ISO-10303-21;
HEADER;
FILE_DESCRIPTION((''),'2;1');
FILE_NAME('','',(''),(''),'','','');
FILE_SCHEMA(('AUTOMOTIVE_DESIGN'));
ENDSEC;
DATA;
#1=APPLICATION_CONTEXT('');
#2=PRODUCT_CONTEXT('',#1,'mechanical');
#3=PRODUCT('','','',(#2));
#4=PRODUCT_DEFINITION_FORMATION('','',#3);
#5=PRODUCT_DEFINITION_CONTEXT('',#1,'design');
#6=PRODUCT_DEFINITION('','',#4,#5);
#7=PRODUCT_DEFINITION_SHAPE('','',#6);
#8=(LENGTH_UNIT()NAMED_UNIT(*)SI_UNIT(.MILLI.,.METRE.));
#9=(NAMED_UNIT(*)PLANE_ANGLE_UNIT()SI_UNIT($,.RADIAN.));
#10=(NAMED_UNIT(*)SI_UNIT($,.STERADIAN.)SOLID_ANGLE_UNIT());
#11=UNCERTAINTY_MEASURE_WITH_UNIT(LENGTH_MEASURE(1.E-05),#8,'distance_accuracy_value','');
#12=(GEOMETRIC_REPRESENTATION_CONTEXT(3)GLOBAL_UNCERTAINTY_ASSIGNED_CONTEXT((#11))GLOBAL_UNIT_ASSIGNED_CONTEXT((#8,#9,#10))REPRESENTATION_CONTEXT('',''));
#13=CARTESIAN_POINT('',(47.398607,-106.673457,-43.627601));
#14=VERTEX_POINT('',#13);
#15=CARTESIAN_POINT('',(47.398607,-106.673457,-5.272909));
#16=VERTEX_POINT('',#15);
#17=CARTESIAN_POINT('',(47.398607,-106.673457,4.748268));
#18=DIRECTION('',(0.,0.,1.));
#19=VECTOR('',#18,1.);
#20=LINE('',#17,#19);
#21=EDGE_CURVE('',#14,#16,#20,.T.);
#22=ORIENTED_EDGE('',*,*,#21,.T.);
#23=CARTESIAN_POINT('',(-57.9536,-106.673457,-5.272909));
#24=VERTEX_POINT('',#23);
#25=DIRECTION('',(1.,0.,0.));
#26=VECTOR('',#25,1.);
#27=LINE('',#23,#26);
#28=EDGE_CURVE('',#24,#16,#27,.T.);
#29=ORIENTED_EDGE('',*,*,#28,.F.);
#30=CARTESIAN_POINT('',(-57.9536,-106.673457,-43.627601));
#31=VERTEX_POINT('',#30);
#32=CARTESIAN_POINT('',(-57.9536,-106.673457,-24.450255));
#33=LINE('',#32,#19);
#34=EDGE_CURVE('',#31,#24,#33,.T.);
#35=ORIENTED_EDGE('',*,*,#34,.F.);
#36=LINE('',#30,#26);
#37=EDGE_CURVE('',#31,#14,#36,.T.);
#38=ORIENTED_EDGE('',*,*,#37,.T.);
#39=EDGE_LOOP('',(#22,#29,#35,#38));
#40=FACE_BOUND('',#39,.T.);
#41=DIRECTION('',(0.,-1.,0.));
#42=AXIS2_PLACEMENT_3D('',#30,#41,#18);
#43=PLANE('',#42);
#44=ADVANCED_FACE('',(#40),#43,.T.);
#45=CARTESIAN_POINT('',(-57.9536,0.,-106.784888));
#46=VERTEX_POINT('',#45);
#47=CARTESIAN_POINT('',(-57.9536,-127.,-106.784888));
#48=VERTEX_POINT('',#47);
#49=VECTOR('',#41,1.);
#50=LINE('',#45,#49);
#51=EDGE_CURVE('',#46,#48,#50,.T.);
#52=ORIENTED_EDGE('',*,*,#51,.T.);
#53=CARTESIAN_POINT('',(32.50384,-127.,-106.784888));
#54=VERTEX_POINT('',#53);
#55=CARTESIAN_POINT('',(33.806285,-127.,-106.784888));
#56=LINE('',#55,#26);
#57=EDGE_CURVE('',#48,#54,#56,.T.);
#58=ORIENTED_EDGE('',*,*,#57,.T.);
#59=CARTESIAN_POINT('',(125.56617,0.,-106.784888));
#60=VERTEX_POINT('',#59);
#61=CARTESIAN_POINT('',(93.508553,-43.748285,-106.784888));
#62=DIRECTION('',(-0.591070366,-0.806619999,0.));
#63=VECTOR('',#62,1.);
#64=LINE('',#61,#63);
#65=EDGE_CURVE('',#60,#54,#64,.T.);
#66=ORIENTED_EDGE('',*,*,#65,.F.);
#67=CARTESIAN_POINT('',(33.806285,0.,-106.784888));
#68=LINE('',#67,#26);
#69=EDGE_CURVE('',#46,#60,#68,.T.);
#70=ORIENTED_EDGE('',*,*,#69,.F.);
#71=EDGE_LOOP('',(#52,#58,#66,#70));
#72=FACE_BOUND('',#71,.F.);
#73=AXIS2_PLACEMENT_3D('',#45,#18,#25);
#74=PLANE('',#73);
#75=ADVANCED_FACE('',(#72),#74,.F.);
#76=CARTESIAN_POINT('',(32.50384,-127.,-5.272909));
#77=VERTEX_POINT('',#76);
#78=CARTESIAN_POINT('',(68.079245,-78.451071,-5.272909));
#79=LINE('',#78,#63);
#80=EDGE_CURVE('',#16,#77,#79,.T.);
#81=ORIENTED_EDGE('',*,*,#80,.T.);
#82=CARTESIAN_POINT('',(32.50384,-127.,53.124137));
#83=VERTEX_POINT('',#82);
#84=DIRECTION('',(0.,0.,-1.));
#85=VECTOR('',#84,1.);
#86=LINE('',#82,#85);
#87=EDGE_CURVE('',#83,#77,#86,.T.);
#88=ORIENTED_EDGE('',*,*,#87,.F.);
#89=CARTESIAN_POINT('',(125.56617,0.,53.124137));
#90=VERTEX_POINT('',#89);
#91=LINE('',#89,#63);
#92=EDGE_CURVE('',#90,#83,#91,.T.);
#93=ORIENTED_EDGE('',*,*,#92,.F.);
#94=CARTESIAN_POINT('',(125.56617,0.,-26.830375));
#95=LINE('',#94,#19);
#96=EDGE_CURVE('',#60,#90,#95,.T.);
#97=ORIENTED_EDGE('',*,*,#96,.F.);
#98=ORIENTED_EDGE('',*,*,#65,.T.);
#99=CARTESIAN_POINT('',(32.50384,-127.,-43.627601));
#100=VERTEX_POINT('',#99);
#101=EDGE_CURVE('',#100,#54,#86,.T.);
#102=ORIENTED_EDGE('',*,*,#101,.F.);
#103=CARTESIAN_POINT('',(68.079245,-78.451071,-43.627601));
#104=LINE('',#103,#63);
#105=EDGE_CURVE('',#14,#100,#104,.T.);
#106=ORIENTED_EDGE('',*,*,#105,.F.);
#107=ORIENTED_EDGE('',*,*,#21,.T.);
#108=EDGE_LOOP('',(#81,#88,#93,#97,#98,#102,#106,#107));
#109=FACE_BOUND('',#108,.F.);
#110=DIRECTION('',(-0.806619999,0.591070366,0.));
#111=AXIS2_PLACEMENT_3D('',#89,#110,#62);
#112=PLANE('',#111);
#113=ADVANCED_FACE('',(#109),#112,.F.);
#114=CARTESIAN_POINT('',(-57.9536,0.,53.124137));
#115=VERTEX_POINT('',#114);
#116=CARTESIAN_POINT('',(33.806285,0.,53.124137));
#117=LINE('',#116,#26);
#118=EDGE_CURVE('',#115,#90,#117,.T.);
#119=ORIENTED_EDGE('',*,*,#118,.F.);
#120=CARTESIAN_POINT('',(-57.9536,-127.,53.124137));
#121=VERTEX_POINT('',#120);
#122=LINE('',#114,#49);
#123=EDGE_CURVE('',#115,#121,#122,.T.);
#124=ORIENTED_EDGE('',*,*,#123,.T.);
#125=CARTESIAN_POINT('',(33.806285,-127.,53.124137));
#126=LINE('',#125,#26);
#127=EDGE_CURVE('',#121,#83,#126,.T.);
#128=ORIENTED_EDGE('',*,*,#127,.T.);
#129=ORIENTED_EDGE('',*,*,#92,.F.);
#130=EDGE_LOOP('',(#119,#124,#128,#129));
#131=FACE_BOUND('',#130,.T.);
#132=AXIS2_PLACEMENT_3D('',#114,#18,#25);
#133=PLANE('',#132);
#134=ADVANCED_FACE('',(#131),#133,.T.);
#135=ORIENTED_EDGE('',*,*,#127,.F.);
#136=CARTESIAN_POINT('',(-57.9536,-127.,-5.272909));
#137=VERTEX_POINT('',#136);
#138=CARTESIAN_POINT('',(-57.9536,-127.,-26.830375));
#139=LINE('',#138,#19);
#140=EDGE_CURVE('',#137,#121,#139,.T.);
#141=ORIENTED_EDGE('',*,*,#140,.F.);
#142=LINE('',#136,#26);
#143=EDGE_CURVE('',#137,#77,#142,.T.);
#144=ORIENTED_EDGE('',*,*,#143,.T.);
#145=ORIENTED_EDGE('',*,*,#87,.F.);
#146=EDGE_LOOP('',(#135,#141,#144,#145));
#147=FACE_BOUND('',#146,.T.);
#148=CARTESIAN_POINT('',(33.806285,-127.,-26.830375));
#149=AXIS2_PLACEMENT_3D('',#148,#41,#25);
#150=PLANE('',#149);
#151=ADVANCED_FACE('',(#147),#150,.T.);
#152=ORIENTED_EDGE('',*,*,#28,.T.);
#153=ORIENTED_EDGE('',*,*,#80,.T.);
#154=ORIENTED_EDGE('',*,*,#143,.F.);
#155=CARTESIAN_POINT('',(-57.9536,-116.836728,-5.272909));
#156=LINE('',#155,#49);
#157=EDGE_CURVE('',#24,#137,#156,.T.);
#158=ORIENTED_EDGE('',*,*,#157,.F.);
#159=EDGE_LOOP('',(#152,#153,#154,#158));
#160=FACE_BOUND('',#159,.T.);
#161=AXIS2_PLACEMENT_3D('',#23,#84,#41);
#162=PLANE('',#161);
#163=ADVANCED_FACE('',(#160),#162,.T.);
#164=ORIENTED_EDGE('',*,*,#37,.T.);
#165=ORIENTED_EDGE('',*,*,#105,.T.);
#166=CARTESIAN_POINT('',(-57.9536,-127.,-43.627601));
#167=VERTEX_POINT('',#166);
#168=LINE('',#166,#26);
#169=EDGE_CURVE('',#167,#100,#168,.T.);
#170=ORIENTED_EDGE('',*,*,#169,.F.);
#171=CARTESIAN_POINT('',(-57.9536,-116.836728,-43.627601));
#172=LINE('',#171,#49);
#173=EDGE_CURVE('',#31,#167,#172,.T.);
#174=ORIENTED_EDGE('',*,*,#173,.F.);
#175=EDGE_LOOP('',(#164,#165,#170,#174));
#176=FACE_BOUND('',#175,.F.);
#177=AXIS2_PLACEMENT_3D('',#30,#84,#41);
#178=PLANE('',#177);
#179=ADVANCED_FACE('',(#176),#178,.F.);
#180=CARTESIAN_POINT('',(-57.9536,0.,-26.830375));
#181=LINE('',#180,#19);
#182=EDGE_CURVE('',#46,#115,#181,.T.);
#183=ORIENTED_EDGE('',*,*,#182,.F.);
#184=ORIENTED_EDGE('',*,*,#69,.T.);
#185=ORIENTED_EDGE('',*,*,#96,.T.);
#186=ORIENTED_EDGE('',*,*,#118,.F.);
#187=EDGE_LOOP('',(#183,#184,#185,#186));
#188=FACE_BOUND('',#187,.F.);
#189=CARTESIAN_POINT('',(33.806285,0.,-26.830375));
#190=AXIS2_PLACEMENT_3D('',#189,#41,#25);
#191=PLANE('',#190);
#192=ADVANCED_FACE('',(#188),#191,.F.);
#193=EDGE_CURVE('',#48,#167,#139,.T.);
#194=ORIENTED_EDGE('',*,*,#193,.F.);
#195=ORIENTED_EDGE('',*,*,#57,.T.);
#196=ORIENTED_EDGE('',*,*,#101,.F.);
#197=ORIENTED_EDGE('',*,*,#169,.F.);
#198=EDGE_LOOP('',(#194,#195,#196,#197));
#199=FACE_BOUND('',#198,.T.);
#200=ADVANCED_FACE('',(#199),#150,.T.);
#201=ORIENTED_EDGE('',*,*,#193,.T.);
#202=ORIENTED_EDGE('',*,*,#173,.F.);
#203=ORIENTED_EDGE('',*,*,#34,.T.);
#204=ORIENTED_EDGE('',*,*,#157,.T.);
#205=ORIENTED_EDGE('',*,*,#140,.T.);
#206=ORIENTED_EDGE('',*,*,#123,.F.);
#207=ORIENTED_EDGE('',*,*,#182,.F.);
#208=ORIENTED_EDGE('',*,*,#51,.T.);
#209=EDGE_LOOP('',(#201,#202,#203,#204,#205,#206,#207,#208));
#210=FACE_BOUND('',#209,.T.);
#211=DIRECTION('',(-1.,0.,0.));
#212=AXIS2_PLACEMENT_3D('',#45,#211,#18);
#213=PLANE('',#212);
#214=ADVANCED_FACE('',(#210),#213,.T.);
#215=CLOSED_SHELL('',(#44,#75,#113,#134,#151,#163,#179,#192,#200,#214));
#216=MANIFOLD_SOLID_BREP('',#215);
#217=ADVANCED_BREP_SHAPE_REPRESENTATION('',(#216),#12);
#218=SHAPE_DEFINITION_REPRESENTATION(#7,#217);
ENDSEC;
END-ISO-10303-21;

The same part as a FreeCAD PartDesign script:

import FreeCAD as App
import Part
import Sketcher
Q = App.Units.Quantity

doc = App.newDocument("Part")
body = doc.addObject("PartDesign::Body", "Body")

# Sketch on XZ plane
sketch1 = doc.addObject("Sketcher::SketchObject", "Sketch")
body.addObject(sketch1)
sketch1.AttachmentSupport = (doc.XZ_Plane, [""])
sketch1.MapMode = "FlatFace"
sketch1.addGeometry([
    Part.LineSegment(App.Vector(-57.9536, 53.124137, 0), App.Vector(-57.9536, -106.784888, 0)),
    Part.LineSegment(App.Vector(-57.9536, -106.784888, 0), App.Vector(125.56617, -106.784888, 0)),
    Part.LineSegment(App.Vector(125.56617, -106.784888, 0), App.Vector(125.56617, 53.124137, 0)),
    Part.LineSegment(App.Vector(125.56617, 53.124137, 0), App.Vector(-57.9536, 53.124137, 0)),
], False)
sketch1.addConstraint([
    Sketcher.Constraint("Coincident", 0, 2, 1, 1),
    Sketcher.Constraint("Coincident", 1, 2, 2, 1),
    Sketcher.Constraint("Coincident", 2, 2, 3, 1),
    Sketcher.Constraint("Coincident", 3, 2, 0, 1),
    Sketcher.Constraint("Vertical", 0),
    Sketcher.Constraint("Horizontal", 1),
    Sketcher.Constraint("Vertical", 2),
    Sketcher.Constraint("Horizontal", 3),
    Sketcher.Constraint("DistanceX", 1, 1, 1, 2, Q("183.519769 mm")),
    Sketcher.Constraint("DistanceX", 0, 2, -1, 1, Q("57.9536 mm")),
    Sketcher.Constraint("DistanceY", 0, 2, 0, 1, Q("159.909025 mm")),
    Sketcher.Constraint("DistanceY", 0, 2, -1, 1, Q("106.784888 mm")),
])
pad1 = doc.addObject("PartDesign::Pad", "Pad")
body.addObject(pad1)
pad1.Profile = sketch1
pad1.Length = Q("5 in")

# Sketch on XY plane
sketch2 = doc.addObject("Sketcher::SketchObject", "Sketch001")
body.addObject(sketch2)
sketch2.AttachmentSupport = (doc.XY_Plane, [""])
sketch2.MapMode = "FlatFace"
sketch2.AttachmentOffset = App.Placement(App.Vector(0, 0, -106.784888), App.Rotation())
sketch2.addGeometry([
    Part.LineSegment(App.Vector(61.160319, -201.032728, 0), App.Vector(125.56617, 0, 0)),
    Part.LineSegment(App.Vector(125.56617, 0, 0), App.Vector(249.781519, -14.928876, 0)),
    Part.LineSegment(App.Vector(249.781519, -14.928876, 0), App.Vector(305.620432, -25.56101, 0)),
    Part.LineSegment(App.Vector(305.620432, -25.56101, 0), App.Vector(61.160319, -201.032728, 0)),
], False)
sketch2.addConstraint([
    Sketcher.Constraint("Coincident", 0, 2, 1, 1),
    Sketcher.Constraint("Coincident", 1, 2, 2, 1),
    Sketcher.Constraint("Coincident", 2, 2, 3, 1),
    Sketcher.Constraint("Coincident", 3, 2, 0, 1),
    Sketcher.Constraint("PointOnObject", 0, 2, -1),
    Sketcher.Constraint("DistanceX", 3, 2, 1, 2, Q("188.621201 mm")),
    Sketcher.Constraint("Distance", 1, Q("125.10925 mm")),
    Sketcher.Constraint("Distance", 2, Q("56.842119 mm")),
    Sketcher.Constraint("Distance", 3, Q("300.917049 mm")),
    Sketcher.Constraint("DistanceX", -1, 1, 0, 2, Q("125.56617 mm")),
    Sketcher.Constraint("DistanceX", -1, 1, 1, 2, Q("249.781519 mm")),
    Sketcher.Constraint("DistanceX", -1, 1, 2, 2, Q("305.620432 mm")),
])
pocket1 = doc.addObject("PartDesign::Pocket", "Pocket")
body.addObject(pocket1)
pocket1.Profile = sketch2
pocket1.Type = "ThroughAll"
pocket1.Reversed = True

# Sketch on XY plane
sketch3 = doc.addObject("Sketcher::SketchObject", "Sketch002")
body.addObject(sketch3)
sketch3.AttachmentSupport = (doc.XY_Plane, [""])
sketch3.MapMode = "FlatFace"
sketch3.AttachmentOffset = App.Placement(App.Vector(0, 0, 53.124137), App.Rotation())
sketch3.addGeometry([
    Part.LineSegment(App.Vector(125.56617, 0, 0), App.Vector(32.50384, -127, 0)),
    Part.LineSegment(App.Vector(32.50384, -127, 0), App.Vector(137.350857, -127, 0)),
    Part.LineSegment(App.Vector(137.350857, -127, 0), App.Vector(149.570793, 0, 0)),
    Part.LineSegment(App.Vector(149.570793, 0, 0), App.Vector(125.56617, 0, 0)),
], False)
sketch3.addConstraint([
    Sketcher.Constraint("Coincident", 0, 2, 1, 1),
    Sketcher.Constraint("Coincident", 1, 2, 2, 1),
    Sketcher.Constraint("Coincident", 2, 2, 3, 1),
    Sketcher.Constraint("Coincident", 3, 2, 0, 1),
    Sketcher.Constraint("Horizontal", 1),
    Sketcher.Constraint("Horizontal", 3),
    Sketcher.Constraint("PointOnObject", 2, 2, -1),
    Sketcher.Constraint("DistanceY", 0, 2, -1, 1, Q("5 in")),
    Sketcher.Constraint("DistanceX", 1, 2, 2, 2, Q("0.4810998 in")),
    Sketcher.Constraint("DistanceX", 1, 1, 1, 2, Q("104.847018 mm")),
    Sketcher.Constraint("DistanceX", 3, 2, 3, 1, Q("24.004623 mm")),
    Sketcher.Constraint("DistanceX", -1, 1, 0, 2, Q("32.50384 mm")),
])
pocket2 = doc.addObject("PartDesign::Pocket", "Pocket001")
body.addObject(pocket2)
pocket2.Profile = sketch3
pocket2.Type = "ThroughAll"

# Sketch on YZ plane
sketch4 = doc.addObject("Sketcher::SketchObject", "Sketch003")
body.addObject(sketch4)
sketch4.AttachmentSupport = (doc.YZ_Plane, [""])
sketch4.MapMode = "FlatFace"
sketch4.AttachmentOffset = App.Placement(App.Vector(0, 0, -57.9536), App.Rotation())
sketch4.addGeometry([
    Part.LineSegment(App.Vector(-106.673457, -5.272909, 0), App.Vector(-106.673457, -43.627601, 0)),
    Part.LineSegment(App.Vector(-106.673457, -43.627601, 0), App.Vector(-127, -43.627601, 0)),
    Part.LineSegment(App.Vector(-127, -43.627601, 0), App.Vector(-127, -5.272909, 0)),
    Part.LineSegment(App.Vector(-127, -5.272909, 0), App.Vector(-106.673457, -5.272909, 0)),
], False)
sketch4.addConstraint([
    Sketcher.Constraint("Coincident", 0, 2, 1, 1),
    Sketcher.Constraint("Coincident", 1, 2, 2, 1),
    Sketcher.Constraint("Coincident", 2, 2, 3, 1),
    Sketcher.Constraint("Coincident", 3, 2, 0, 1),
    Sketcher.Constraint("Vertical", 0),
    Sketcher.Constraint("Horizontal", 1),
    Sketcher.Constraint("Vertical", 2),
    Sketcher.Constraint("Horizontal", 3),
    Sketcher.Constraint("DistanceX", 1, 2, -1, 1, Q("5 in")),
    Sketcher.Constraint("DistanceY", 0, 2, -1, 1, Q("43.627601 mm")),
    Sketcher.Constraint("DistanceX", 1, 2, 1, 1, Q("20.326543 mm")),
    Sketcher.Constraint("DistanceY", 0, 2, 0, 1, Q("38.354693 mm")),
])
pocket3 = doc.addObject("PartDesign::Pocket", "Pocket002")
body.addObject(pocket3)
pocket3.Profile = sketch4
pocket3.Type = "ThroughAll"
pocket3.Reversed = True

doc.recompute()
